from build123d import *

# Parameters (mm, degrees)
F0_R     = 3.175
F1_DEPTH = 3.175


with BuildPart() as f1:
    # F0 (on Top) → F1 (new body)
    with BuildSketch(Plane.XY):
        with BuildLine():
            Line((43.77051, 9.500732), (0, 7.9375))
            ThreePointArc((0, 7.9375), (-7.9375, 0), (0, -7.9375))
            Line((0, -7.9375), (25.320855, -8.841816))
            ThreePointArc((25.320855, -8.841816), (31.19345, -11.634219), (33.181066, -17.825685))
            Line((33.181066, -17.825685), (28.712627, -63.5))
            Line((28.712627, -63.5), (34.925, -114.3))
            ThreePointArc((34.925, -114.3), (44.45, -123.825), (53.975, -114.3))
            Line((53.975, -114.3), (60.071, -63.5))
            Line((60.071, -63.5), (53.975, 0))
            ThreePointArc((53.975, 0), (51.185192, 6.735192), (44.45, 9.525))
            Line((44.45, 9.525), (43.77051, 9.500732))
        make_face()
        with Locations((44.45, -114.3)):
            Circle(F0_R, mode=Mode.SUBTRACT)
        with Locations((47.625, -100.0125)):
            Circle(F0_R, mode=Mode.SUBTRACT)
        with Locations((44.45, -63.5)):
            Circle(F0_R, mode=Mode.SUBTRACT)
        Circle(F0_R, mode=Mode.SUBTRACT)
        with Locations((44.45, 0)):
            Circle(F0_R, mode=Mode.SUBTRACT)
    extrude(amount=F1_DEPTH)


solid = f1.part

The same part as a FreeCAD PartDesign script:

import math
import FreeCAD as App
import Part
import Sketcher
Q = App.Units.Quantity

doc = App.newDocument("Part")
params = doc.addObject("Spreadsheet::Sheet", "Params")
for row, (alias, value) in enumerate([
    ("sketch1_diameter", "0.25 in"),
    ("sketch1_radius", "0.3125 in"),
    ("sketch1_radius2", "0.375 in"),
    ("pad1_length", "0.125 in"),
], start=1):
    params.set(f"A{row}", alias)
    params.set(f"B{row}", "=" + value)
    params.setAlias(f"B{row}", alias)

body = doc.addObject("PartDesign::Body", "Body")

# Sketch on XY plane
sketch1 = doc.addObject("Sketcher::SketchObject", "Sketch")
body.addObject(sketch1)
sketch1.AttachmentSupport = (doc.XY_Plane, [""])
sketch1.MapMode = "FlatFace"
sketch1.addGeometry([
    Part.LineSegment(App.Vector(43.8, 9.5, 0), App.Vector(0, 7.9, 0)),  # 0
    Part.ArcOfCircle(Part.Circle(App.Vector(0, 0, 0), App.Vector(0, 0, 1), 7.9), math.radians(90), math.radians(270)),  # 1
    Part.LineSegment(App.Vector(0, -7.9, 0), App.Vector(25.3, -8.8, 0)),  # 2
    Part.ArcOfCircle(Part.Circle(App.Vector(25, -17, 0), App.Vector(0, 0, 1), 8.2), math.radians(-6), math.radians(88)),  # 3
    Part.LineSegment(App.Vector(33.2, -17.8, 0), App.Vector(28.7, -63.5, 0)),  # 4
    Part.LineSegment(App.Vector(28.7, -63.5, 0), App.Vector(34.9, -114.3, 0)),  # 5
    Part.ArcOfCircle(Part.Circle(App.Vector(44.5, -114.3, 0), App.Vector(0, 0, 1), 9.5), math.radians(180), math.radians(360)),  # 6
    Part.LineSegment(App.Vector(54, -114.3, 0), App.Vector(60.1, -63.5, 0)),  # 7
    Part.LineSegment(App.Vector(60.1, -63.5, 0), App.Vector(54, 0, 0)),  # 8
    Part.ArcOfCircle(Part.Circle(App.Vector(44.4, 0, 0), App.Vector(0, 0, 1), 9.5), math.radians(0), math.radians(90)),  # 9
    Part.LineSegment(App.Vector(44.5, 9.5, 0), App.Vector(43.8, 9.5, 0)),  # 10
    Part.Circle(App.Vector(44.5, -114.3, 0), App.Vector(0, 0, 1), 3.2),  # 11
    Part.Circle(App.Vector(47.6, -100, 0), App.Vector(0, 0, 1), 3.2),  # 12
    Part.Circle(App.Vector(44.5, -63.5, 0), App.Vector(0, 0, 1), 3.2),  # 13
    Part.Circle(App.Vector(0, 0, 0), App.Vector(0, 0, 1), 3.2),  # 14
    Part.Circle(App.Vector(44.5, 0, 0), App.Vector(0, 0, 1), 3.2),  # 15
], False)
sketch1.addConstraint([
    Sketcher.Constraint("Coincident", 0, 2, 1, 1),
    Sketcher.Constraint("Coincident", 1, 2, 2, 1),
    Sketcher.Constraint("Tangent", 2, 2, 3, 2),
    Sketcher.Constraint("Tangent", 3, 1, 4, 1),
    Sketcher.Constraint("Coincident", 4, 2, 5, 1),
    Sketcher.Constraint("Coincident", 5, 2, 6, 1),
    Sketcher.Constraint("Coincident", 6, 2, 7, 1),
    Sketcher.Constraint("Coincident", 7, 2, 8, 1),
    Sketcher.Constraint("Coincident", 8, 2, 9, 1),
    Sketcher.Constraint("Coincident", 9, 2, 10, 1),
    Sketcher.Constraint("Coincident", 10, 2, 0, 1),
    Sketcher.Constraint("Coincident", 1, 3, -1, 1),
    Sketcher.Constraint("Coincident", 14, 3, -1, 1),
    Sketcher.Constraint("Coincident", 11, 3, 6, 3),
    Sketcher.Constraint("Coincident", 15, 3, 9, 3),
    Sketcher.Constraint("Equal", 6, 9),
    Sketcher.Constraint("Equal", 11, 12),
    Sketcher.Constraint("Equal", 12, 13),
    Sketcher.Constraint("Equal", 13, 14),
    Sketcher.Constraint("Equal", 14, 15),
    Sketcher.Constraint("PointOnObject", 9, 3, -1),
    Sketcher.Constraint("PointOnObject", 0, 2, -2),
    Sketcher.Constraint("PointOnObject", 1, 2, -2),
    Sketcher.Constraint("PointOnObject", 8, 2, -1),
    Sketcher.Constraint("Parallel", 0, 10),
    Sketcher.Constraint("Horizontal", 13, 3, 4, 2),
    Sketcher.Constraint("Horizontal", 11, 3, 5, 2),
    Sketcher.Constraint("Horizontal", 5, 2, 6, 2),
    Sketcher.Constraint("Horizontal", 4, 2, 7, 2),
    Sketcher.Constraint("Vertical", 6, 3, 9, 3),
    Sketcher.Constraint("Vertical", 11, 3, 13, 3),
    Sketcher.Constraint("Vertical", 15, 3, 9, 2),
    Sketcher.Constraint("Diameter", 11, Q("0.25 in")),
    Sketcher.Constraint("Radius", 1, Q("0.3125 in")),
    Sketcher.Constraint("Radius", 6, Q("0.375 in")),
    Sketcher.Constraint("DistanceY", 6, 3, 13, 3, Q("2 in")),
    Sketcher.Constraint("DistanceY", 6, 3, -1, 1, Q("4.5 in")),
    Sketcher.Constraint("Radius", 3, Q("0.3225 in")),
    Sketcher.Constraint("DistanceX", 5, 2, 12, 3, Q("0.5 in")),
    Sketcher.Constraint("DistanceX", -1, 1, 6, 3, Q("1.75 in")),
    Sketcher.Constraint("DistanceX", 12, 3, 7, 2, Q("0.49 in")),
    Sketcher.Constraint("DistanceY", 12, 3, -1, 1, Q("3.9375 in")),
    Sketcher.Constraint("Distance", 2, Q("25.336998 mm")),
    Sketcher.Constraint("Distance", 5, Q("51.178448 mm")),
    Sketcher.Constraint("DistanceX", -1, 1, 3, 3, Q("25.028488 mm")),
    Sketcher.Constraint("DistanceX", -1, 1, 10, 2, Q("43.77051 mm")),
])
sketch1.setExpression("Constraints[32]", "Params.sketch1_diameter")
sketch1.setExpression("Constraints[33]", "Params.sketch1_radius")
sketch1.setExpression("Constraints[34]", "Params.sketch1_radius2")
pad1 = doc.addObject("PartDesign::Pad", "Pad")
body.addObject(pad1)
pad1.Profile = sketch1
pad1.setExpression("Length", "Params.pad1_length")

doc.recompute()
